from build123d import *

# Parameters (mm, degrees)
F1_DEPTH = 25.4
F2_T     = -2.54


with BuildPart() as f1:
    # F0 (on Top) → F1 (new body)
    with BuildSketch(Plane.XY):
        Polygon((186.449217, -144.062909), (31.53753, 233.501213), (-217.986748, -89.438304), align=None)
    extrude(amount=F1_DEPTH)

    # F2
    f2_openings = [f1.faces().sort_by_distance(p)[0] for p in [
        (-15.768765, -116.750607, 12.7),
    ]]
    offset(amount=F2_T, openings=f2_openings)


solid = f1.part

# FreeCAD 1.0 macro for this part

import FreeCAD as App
import Part
import Sketcher
from FreeCAD import Vector
Q = App.Units.Quantity


def faces_at(feature, points):
    """Names of the faces that lie closest to the given points."""
    faces = feature.Shape.Faces
    near = lambda p: min(range(len(faces)), key=lambda i: faces[i].distToShape(Part.Vertex(*p))[0])
    return sorted({f"Face{near(p) + 1}" for p in points})


def add_polygon(sketch, points):
    """Adds a closed chain of lines whose ends are joined by coincident constraints."""
    first, n = sketch.GeometryCount, len(points)
    for a, b in zip(points, points[1:] + points[:1]):
        sketch.addGeometry(Part.LineSegment(App.Vector(*a, 0), App.Vector(*b, 0)), False)
    for i in range(n):
        sketch.addConstraint(Sketcher.Constraint("Coincident", first + i, 2, first + (i + 1) % n, 1))

doc = App.newDocument("Part")
params = doc.addObject("Spreadsheet::Sheet", "Params")
for row, (alias, value) in enumerate([
    ("pad1_length", "1 in"),
    ("thickness_wall", "0.1 in"),
], start=1):
    params.set(f"A{row}", alias)
    params.set(f"B{row}", "=" + value)
    params.setAlias(f"B{row}", alias)

body = doc.addObject("PartDesign::Body", "Body")

# Sketch on XY plane
sketch1 = doc.addObject("Sketcher::SketchObject", "Sketch")
body.addObject(sketch1)
sketch1.AttachmentSupport = (doc.XY_Plane, [""])
sketch1.MapMode = "FlatFace"
add_polygon(sketch1, [(186, -144), (32, 234), (-218, -89)])  # lines 0-2
sketch1.addConstraint([
    Sketcher.Constraint("Equal", 0, 1),
    Sketcher.Constraint("Equal", 1, 2),
    Sketcher.Constraint("DistanceX", -1, 1, 0, 2, Q("31.53753 mm")),
    Sketcher.Constraint("DistanceX", 1, 2, -1, 1, Q("217.986748 mm")),
    Sketcher.Constraint("DistanceY", 2, 2, -1, 1, Q("144.062909 mm")),
    Sketcher.Constraint("DistanceY", 2, 2, 0, 2, Q("377.564122 mm")),
])
pad1 = doc.addObject("PartDesign::Pad", "Pad")
body.addObject(pad1)
pad1.Profile = sketch1
pad1.setExpression("Length", "Params.pad1_length")
doc.recompute()

thickness = doc.addObject("PartDesign::Thickness", "Thickness")
body.addObject(thickness)
thickness.Base = (pad1, faces_at(pad1, [(-15.769, -116.751, 12.7)]))
thickness.setExpression("Value", "Params.thickness_wall")
thickness.Reversed = True
thickness.Join = "Arc"

doc.recompute()
